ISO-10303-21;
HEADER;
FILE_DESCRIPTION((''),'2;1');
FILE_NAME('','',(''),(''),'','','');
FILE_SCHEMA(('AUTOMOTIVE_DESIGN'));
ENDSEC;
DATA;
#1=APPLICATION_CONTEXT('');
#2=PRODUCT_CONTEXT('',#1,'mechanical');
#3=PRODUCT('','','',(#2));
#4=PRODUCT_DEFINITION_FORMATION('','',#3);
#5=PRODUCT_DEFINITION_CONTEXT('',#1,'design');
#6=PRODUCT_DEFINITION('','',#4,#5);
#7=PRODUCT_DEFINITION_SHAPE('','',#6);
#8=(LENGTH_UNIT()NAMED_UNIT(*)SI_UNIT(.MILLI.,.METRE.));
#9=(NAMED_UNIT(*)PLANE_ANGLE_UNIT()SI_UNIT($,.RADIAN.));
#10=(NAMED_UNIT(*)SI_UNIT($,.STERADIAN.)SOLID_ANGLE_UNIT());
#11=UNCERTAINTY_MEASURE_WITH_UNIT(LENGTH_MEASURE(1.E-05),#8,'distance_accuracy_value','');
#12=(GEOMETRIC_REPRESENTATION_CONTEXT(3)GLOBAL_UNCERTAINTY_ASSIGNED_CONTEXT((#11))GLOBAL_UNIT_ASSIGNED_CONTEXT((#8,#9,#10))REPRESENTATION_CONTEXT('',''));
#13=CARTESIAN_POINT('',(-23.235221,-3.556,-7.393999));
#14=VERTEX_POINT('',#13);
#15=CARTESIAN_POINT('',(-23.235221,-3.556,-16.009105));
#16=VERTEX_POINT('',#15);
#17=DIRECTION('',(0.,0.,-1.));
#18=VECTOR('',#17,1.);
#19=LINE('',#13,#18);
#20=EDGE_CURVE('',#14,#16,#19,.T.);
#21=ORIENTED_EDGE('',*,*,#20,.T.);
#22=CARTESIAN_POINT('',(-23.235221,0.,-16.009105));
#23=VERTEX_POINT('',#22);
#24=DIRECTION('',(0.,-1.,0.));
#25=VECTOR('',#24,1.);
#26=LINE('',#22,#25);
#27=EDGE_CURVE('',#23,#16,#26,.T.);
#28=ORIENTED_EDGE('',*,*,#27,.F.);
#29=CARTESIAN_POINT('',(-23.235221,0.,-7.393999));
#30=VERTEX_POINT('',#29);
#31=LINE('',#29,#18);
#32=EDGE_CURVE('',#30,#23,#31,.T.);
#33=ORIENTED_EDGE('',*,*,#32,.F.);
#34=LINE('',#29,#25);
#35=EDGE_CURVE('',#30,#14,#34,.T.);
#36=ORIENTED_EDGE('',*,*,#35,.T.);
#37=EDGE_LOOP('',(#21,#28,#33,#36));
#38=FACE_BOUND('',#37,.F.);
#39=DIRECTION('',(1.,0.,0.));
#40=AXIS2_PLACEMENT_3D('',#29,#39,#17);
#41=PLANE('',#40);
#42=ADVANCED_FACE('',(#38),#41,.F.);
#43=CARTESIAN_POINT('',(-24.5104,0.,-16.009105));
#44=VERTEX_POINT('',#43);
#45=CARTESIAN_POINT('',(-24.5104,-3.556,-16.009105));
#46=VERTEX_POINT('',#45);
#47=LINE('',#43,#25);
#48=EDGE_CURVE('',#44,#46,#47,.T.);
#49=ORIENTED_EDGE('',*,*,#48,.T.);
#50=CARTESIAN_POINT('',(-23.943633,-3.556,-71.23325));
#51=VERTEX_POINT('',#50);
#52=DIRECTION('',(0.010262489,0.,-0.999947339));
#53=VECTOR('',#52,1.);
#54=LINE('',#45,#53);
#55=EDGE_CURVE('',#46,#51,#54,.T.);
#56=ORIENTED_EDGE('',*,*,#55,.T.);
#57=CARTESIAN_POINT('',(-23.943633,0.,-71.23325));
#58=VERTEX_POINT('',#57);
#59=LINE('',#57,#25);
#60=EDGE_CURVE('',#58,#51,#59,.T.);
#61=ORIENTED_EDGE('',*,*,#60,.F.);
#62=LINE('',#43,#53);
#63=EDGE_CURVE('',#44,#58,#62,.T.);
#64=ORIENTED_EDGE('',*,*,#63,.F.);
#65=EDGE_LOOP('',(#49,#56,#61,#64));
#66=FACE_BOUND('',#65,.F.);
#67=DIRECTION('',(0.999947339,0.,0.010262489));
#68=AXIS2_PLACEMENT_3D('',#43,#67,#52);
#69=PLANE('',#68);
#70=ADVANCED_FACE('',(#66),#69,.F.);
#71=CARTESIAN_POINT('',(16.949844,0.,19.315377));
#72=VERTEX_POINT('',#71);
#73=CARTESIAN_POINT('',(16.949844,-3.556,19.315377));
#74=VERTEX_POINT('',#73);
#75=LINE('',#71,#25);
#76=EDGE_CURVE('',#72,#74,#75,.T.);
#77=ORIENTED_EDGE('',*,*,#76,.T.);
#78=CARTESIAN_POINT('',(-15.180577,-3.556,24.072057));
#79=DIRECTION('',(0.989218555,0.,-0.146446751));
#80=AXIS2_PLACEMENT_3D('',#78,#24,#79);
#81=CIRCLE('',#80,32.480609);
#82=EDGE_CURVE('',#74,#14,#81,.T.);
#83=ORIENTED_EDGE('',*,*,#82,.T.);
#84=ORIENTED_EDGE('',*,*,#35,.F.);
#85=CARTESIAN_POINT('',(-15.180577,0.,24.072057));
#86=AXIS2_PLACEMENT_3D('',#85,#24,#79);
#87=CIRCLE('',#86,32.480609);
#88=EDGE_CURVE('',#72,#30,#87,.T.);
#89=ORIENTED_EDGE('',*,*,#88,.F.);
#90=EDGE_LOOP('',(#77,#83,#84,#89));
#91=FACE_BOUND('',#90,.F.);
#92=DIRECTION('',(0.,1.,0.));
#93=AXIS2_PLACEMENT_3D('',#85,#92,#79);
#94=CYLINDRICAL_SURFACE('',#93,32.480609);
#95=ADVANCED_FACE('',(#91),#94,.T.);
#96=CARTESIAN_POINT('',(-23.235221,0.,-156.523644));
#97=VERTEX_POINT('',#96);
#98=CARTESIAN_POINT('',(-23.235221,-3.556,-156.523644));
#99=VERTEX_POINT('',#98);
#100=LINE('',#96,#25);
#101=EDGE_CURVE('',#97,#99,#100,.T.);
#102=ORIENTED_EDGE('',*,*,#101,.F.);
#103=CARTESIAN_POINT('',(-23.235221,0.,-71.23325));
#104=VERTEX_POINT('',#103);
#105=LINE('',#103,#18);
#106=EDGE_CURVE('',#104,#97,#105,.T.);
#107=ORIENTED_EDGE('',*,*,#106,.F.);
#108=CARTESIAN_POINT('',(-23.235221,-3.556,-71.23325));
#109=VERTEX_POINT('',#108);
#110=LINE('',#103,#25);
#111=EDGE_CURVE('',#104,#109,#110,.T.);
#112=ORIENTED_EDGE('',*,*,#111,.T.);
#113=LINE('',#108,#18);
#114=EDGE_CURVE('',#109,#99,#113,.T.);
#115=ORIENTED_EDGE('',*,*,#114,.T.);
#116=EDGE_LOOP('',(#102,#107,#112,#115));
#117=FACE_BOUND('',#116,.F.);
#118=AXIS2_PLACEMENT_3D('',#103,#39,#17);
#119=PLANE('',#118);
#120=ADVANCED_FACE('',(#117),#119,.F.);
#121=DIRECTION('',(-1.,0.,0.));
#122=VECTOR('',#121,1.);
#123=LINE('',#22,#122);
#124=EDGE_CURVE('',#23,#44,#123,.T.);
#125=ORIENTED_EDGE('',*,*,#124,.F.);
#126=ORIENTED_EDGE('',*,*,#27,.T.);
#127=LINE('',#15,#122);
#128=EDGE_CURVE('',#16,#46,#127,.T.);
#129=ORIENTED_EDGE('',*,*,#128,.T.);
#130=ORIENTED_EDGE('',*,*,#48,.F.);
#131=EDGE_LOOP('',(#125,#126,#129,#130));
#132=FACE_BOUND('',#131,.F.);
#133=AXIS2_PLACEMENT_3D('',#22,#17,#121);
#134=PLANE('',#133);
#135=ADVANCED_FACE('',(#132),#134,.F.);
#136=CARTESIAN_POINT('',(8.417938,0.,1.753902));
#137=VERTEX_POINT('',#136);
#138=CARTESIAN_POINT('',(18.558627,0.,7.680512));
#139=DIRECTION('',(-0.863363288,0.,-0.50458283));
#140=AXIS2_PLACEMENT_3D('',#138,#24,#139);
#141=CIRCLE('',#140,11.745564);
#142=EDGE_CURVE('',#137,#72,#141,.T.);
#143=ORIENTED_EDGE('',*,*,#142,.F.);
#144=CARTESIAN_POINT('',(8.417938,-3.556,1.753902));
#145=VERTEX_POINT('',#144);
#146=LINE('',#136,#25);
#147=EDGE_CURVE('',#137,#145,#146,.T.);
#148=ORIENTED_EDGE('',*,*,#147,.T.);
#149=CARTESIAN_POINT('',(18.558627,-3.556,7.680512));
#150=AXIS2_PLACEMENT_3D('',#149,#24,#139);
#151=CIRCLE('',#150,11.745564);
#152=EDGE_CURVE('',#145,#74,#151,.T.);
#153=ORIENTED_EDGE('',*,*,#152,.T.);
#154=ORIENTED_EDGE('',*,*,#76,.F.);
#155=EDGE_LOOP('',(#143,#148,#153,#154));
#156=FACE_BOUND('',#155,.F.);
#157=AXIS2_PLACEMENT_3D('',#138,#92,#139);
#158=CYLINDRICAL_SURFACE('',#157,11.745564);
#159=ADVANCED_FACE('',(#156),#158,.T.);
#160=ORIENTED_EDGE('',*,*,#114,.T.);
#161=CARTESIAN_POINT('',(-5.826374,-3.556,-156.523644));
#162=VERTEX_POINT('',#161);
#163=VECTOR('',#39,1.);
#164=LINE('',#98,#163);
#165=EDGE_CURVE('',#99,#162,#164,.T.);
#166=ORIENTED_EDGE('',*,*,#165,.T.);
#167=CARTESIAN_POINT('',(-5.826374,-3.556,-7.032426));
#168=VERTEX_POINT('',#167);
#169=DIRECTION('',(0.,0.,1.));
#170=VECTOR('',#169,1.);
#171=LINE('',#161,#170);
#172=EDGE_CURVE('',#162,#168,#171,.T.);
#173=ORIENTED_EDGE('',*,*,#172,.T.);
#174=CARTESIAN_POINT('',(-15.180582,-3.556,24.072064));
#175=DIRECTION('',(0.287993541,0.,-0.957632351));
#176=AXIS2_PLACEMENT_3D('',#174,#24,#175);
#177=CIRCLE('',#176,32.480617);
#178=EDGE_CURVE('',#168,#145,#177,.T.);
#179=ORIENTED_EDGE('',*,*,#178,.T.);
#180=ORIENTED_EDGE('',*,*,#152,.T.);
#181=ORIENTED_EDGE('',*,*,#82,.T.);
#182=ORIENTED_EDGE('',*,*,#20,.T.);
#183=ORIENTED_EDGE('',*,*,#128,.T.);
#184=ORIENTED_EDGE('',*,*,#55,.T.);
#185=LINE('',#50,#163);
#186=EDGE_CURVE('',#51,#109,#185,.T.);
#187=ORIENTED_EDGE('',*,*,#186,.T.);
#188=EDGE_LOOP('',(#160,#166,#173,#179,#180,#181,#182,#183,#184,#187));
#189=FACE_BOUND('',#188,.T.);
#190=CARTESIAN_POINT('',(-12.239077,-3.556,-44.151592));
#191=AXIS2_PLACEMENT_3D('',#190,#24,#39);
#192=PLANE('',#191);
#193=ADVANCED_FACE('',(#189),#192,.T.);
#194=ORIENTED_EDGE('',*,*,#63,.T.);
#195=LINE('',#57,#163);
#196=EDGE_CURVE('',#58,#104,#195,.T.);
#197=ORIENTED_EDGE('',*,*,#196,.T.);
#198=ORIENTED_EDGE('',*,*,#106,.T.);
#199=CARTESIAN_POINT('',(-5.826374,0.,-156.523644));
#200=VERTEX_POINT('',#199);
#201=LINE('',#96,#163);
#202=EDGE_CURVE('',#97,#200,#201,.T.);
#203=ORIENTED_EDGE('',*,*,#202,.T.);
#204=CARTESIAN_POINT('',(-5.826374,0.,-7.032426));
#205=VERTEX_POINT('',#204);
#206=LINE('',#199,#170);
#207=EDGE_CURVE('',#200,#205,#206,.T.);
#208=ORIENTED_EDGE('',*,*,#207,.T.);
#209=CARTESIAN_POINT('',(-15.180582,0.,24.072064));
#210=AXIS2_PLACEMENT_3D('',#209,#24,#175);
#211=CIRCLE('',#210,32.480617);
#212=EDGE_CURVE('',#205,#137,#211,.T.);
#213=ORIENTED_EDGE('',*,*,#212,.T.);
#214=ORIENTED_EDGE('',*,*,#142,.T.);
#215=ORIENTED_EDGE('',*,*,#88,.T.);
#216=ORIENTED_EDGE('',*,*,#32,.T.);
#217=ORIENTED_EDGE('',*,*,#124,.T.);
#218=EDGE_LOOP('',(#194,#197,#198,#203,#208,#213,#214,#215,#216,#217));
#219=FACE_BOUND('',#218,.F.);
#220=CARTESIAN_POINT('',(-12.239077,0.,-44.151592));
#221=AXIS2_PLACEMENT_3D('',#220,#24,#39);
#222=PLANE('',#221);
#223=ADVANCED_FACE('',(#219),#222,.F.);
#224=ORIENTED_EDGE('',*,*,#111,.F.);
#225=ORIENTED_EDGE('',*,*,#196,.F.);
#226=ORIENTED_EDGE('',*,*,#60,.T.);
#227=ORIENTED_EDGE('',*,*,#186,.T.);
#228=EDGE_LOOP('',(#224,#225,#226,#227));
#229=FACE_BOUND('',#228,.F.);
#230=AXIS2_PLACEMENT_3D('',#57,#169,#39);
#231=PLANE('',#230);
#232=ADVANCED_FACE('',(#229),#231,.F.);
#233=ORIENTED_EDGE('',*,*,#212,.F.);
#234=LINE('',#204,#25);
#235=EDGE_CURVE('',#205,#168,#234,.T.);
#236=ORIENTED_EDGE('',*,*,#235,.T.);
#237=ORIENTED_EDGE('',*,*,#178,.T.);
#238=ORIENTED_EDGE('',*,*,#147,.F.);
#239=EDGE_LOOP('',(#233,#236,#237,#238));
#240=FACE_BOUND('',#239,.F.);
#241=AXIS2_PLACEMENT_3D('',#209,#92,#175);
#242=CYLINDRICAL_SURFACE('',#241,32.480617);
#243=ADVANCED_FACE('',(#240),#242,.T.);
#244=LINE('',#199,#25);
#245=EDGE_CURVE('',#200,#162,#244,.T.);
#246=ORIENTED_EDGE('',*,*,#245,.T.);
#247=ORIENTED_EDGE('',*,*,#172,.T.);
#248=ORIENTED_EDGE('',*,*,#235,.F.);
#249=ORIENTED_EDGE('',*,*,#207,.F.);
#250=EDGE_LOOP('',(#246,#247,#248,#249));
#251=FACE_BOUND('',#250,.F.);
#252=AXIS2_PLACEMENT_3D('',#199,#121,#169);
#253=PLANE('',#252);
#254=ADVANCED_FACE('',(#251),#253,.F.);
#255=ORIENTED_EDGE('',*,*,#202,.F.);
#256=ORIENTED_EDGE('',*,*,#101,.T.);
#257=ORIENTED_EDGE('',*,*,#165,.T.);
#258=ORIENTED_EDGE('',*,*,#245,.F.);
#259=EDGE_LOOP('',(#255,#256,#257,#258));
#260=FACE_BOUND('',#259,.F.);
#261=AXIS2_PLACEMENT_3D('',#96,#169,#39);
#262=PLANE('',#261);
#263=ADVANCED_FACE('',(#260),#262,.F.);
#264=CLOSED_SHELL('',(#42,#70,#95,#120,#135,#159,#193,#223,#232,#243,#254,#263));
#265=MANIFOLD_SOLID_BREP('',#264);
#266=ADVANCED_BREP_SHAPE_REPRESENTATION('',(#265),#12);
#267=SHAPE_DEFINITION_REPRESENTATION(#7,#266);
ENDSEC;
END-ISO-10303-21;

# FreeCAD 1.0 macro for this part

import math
import FreeCAD as App
import Part
import Sketcher

V = App.Vector

doc = App.newDocument("Part")
params = doc.addObject("Spreadsheet::Sheet", "Params")
for row, (alias, value) in enumerate([
    ("pad1_length", "0.14 in"),
], start=1):
    params.set(f"A{row}", alias)
    params.set(f"B{row}", "=" + value)
    params.setAlias(f"B{row}", alias)

body = doc.addObject("PartDesign::Body", "Body")

sketch1 = body.newObject("Sketcher::SketchObject", "Sketch")
sketch1.AttachmentSupport = (doc.getObject("XZ_Plane"), [""])
sketch1.MapMode = "FlatFace"
sketch1.addGeometry([
    Part.LineSegment(V(-5.8, -156.5, 0), V(-5.8, -7, 0)),
    Part.ArcOfCircle(Part.Circle(V(-15.2, 24.1, 0), V(0, 0, 1), 32.5), math.radians(-73), math.radians(-43)),
    Part.ArcOfCircle(Part.Circle(V(18.6, 7.7, 0), V(0, 0, 1), 11.7), math.radians(-150), math.radians(98)),
    Part.ArcOfCircle(Part.Circle(V(-15.2, 24.1, 0), V(0, 0, 1), 32.5), math.radians(-8), math.radians(256)),
    Part.LineSegment(V(-23.2, -7.4, 0), V(-23.2, -16, 0)),
    Part.LineSegment(V(-23.2, -16, 0), V(-24.5, -16, 0)),
    Part.LineSegment(V(-24.5, -16, 0), V(-23.9, -71.2, 0)),
    Part.LineSegment(V(-23.9, -71.2, 0), V(-23.2, -71.2, 0)),
    Part.LineSegment(V(-23.2, -71.2, 0), V(-23.2, -156.5, 0)),
    Part.LineSegment(V(-23.2, -156.5, 0), V(-5.8, -156.5, 0)),
], False)
sketch1.addConstraint([
    Sketcher.Constraint("Coincident", 0, 2, 1, 1),
    Sketcher.Constraint("Coincident", 1, 2, 2, 1),
    Sketcher.Constraint("Coincident", 2, 2, 3, 1),
    Sketcher.Constraint("Coincident", 3, 2, 4, 1),
    Sketcher.Constraint("Coincident", 4, 2, 5, 1),
    Sketcher.Constraint("Coincident", 5, 2, 6, 1),
    Sketcher.Constraint("Coincident", 6, 2, 7, 1),
    Sketcher.Constraint("Coincident", 7, 2, 8, 1),
    Sketcher.Constraint("Coincident", 8, 2, 9, 1),
    Sketcher.Constraint("Coincident", 9, 2, 0, 1),
    Sketcher.Constraint("Vertical", 0),
    Sketcher.Constraint("Vertical", 4),
    Sketcher.Constraint("Horizontal", 5),
    Sketcher.Constraint("Horizontal", 7),
    Sketcher.Constraint("Vertical", 8),
    Sketcher.Constraint("Horizontal", 9),
    Sketcher.Constraint("Coincident", 3, 3, 1, 3),
    Sketcher.Constraint("Vertical", 4, 2, 7, 2),
    Sketcher.Constraint("Radius", 3, 32.480609),
    Sketcher.Constraint("Radius", 1, 32.480617),
    Sketcher.Constraint("Radius", 2, 11.745564),
    Sketcher.Constraint("DistanceX", 5, 2, 5, 1, 1.275179),
    Sketcher.Constraint("DistanceX", 7, 1, 7, 2, 0.708412),
    Sketcher.Constraint("DistanceY", 0, 1, 0, 2, 149.491218),
    Sketcher.Constraint("DistanceY", -1, 1, 1, 2, 1.753902),
    Sketcher.Constraint("DistanceY", 3, 2, -1, 1, 7.393999),
    Sketcher.Constraint("DistanceX", 5, 2, -1, 1, 24.5104),
    Sketcher.Constraint("DistanceX", 0, 2, 2, 3, 24.385001),
    Sketcher.Constraint("DistanceX", 9, 1, 9, 2, 17.408847),
    Sketcher.Constraint("DistanceY", 4, 2, 4, 1, 8.615106),
    Sketcher.Constraint("DistanceY", 8, 2, 8, 1, 85.290394),
    Sketcher.Constraint("DistanceX", 1, 3, -1, 1, 15.180582),
])
pad1 = body.newObject("PartDesign::Pad", "Pad")
pad1.Profile = sketch1
pad1.setExpression("Length", "Params.pad1_length")

doc.recompute()
